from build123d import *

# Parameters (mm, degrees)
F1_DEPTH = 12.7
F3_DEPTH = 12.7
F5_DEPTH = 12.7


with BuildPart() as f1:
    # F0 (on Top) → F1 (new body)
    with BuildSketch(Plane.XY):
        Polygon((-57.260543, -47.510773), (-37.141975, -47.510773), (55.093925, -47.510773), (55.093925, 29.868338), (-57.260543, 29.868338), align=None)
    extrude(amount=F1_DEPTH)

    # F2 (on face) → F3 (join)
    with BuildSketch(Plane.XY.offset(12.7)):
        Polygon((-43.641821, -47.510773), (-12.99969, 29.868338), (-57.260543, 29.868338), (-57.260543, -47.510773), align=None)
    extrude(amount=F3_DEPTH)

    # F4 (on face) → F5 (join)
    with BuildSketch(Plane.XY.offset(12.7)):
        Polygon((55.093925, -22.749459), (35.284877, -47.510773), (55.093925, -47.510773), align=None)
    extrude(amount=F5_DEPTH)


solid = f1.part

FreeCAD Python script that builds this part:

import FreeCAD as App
import Part
import Sketcher

V = App.Vector
Q = App.Units.Quantity

doc = App.newDocument("Part")
body = doc.addObject("PartDesign::Body", "Body")

sketch1 = body.newObject("Sketcher::SketchObject", "Sketch")
sketch1.AttachmentSupport = (doc.getObject("XY_Plane"), [""])
sketch1.MapMode = "FlatFace"
sketch1.addGeometry(Part.LineSegment(V(-57, -48, 0), V(55, -48, 0)), False)
sketch1.addGeometry(Part.LineSegment(V(55, -48, 0), V(55, 30, 0)), False)
sketch1.addGeometry(Part.LineSegment(V(55, 30, 0), V(-57, 30, 0)), False)
sketch1.addGeometry(Part.LineSegment(V(-57, 30, 0), V(-57, -48, 0)), False)
sketch1.addConstraint(Sketcher.Constraint("Coincident", 0, 2, 1, 1))
sketch1.addConstraint(Sketcher.Constraint("Coincident", 1, 2, 2, 1))
sketch1.addConstraint(Sketcher.Constraint("Coincident", 2, 2, 3, 1))
sketch1.addConstraint(Sketcher.Constraint("Coincident", 3, 2, 0, 1))
sketch1.addConstraint(Sketcher.Constraint("Horizontal", 0))
sketch1.addConstraint(Sketcher.Constraint("Vertical", 1))
sketch1.addConstraint(Sketcher.Constraint("Horizontal", 2))
sketch1.addConstraint(Sketcher.Constraint("Vertical", 3))
sketch1.addConstraint(Sketcher.Constraint("DistanceY", 1, 1, 1, 2, 77.379111))
sketch1.addConstraint(Sketcher.Constraint("DistanceX", 0, 1, 0, 2, 112.354468))
sketch1.addConstraint(Sketcher.Constraint("DistanceY", -1, 1, 1, 2, 29.868338))
sketch1.addConstraint(Sketcher.Constraint("DistanceX", -1, 1, 0, 2, 55.093925))
pad1 = body.newObject("PartDesign::Pad", "Pad")
pad1.Profile = sketch1
pad1.Length = Q("0.5 in")

sketch2 = body.newObject("Sketcher::SketchObject", "Sketch001")
sketch2.AttachmentSupport = (doc.getObject("XY_Plane"), [""])
sketch2.MapMode = "FlatFace"
sketch2.AttachmentOffset = App.Placement(V(0, 0, 0.5 * 25.4), App.Rotation())
sketch2.addGeometry(Part.LineSegment(V(-44, -48, 0), V(-13, 30, 0)), False)
sketch2.addGeometry(Part.LineSegment(V(-13, 30, 0), V(-57, 30, 0)), False)
sketch2.addGeometry(Part.LineSegment(V(-57, 30, 0), V(-57, -48, 0)), False)
sketch2.addGeometry(Part.LineSegment(V(-57, -48, 0), V(-44, -48, 0)), False)
sketch2.addConstraint(Sketcher.Constraint("Coincident", 0, 2, 1, 1))
sketch2.addConstraint(Sketcher.Constraint("Coincident", 1, 2, 2, 1))
sketch2.addConstraint(Sketcher.Constraint("Coincident", 2, 2, 3, 1))
sketch2.addConstraint(Sketcher.Constraint("Coincident", 3, 2, 0, 1))
sketch2.addConstraint(Sketcher.Constraint("Horizontal", 1))
sketch2.addConstraint(Sketcher.Constraint("Vertical", 2))
sketch2.addConstraint(Sketcher.Constraint("Horizontal", 3))
sketch2.addConstraint(Sketcher.Constraint("Distance", 0, 83.225399))
sketch2.addConstraint(Sketcher.Constraint("DistanceX", 3, 1, 3, 2, 13.618722))
sketch2.addConstraint(Sketcher.Constraint("DistanceY", 2, 2, 2, 1, 77.379111))
sketch2.addConstraint(Sketcher.Constraint("DistanceX", 0, 2, -1, 1, 12.99969))
sketch2.addConstraint(Sketcher.Constraint("DistanceY", -1, 1, 0, 2, 29.868338))
pad2 = body.newObject("PartDesign::Pad", "Pad001")
pad2.Profile = sketch2
pad2.Length = Q("0.5 in")

sketch3 = body.newObject("Sketcher::SketchObject", "Sketch002")
sketch3.AttachmentSupport = (doc.getObject("XY_Plane"), [""])
sketch3.MapMode = "FlatFace"
sketch3.AttachmentOffset = App.Placement(V(0, 0, 0.5 * 25.4), App.Rotation())
sketch3.addGeometry(Part.LineSegment(V(55, -23, 0), V(35, -48, 0)), False)
sketch3.addGeometry(Part.LineSegment(V(35, -48, 0), V(55, -48, 0)), False)
sketch3.addGeometry(Part.LineSegment(V(55, -48, 0), V(55, -23, 0)), False)
sketch3.addConstraint(Sketcher.Constraint("Coincident", 0, 2, 1, 1))
sketch3.addConstraint(Sketcher.Constraint("Coincident", 1, 2, 2, 1))
sketch3.addConstraint(Sketcher.Constraint("Coincident", 2, 2, 0, 1))
sketch3.addConstraint(Sketcher.Constraint("Horizontal", 1))
sketch3.addConstraint(Sketcher.Constraint("Vertical", 2))
sketch3.addConstraint(Sketcher.Constraint("Distance", 0, 31.709952))
sketch3.addConstraint(Sketcher.Constraint("DistanceX", 1, 1, 1, 2, 19.809048))
sketch3.addConstraint(Sketcher.Constraint("DistanceY", 2, 2, -1, 1, 22.749459))
sketch3.addConstraint(Sketcher.Constraint("DistanceX", -1, 1, 0, 2, 35.284877))
pad3 = body.newObject("PartDesign::Pad", "Pad002")
pad3.Profile = sketch3
pad3.Length = Q("0.5 in")

doc.recompute()
